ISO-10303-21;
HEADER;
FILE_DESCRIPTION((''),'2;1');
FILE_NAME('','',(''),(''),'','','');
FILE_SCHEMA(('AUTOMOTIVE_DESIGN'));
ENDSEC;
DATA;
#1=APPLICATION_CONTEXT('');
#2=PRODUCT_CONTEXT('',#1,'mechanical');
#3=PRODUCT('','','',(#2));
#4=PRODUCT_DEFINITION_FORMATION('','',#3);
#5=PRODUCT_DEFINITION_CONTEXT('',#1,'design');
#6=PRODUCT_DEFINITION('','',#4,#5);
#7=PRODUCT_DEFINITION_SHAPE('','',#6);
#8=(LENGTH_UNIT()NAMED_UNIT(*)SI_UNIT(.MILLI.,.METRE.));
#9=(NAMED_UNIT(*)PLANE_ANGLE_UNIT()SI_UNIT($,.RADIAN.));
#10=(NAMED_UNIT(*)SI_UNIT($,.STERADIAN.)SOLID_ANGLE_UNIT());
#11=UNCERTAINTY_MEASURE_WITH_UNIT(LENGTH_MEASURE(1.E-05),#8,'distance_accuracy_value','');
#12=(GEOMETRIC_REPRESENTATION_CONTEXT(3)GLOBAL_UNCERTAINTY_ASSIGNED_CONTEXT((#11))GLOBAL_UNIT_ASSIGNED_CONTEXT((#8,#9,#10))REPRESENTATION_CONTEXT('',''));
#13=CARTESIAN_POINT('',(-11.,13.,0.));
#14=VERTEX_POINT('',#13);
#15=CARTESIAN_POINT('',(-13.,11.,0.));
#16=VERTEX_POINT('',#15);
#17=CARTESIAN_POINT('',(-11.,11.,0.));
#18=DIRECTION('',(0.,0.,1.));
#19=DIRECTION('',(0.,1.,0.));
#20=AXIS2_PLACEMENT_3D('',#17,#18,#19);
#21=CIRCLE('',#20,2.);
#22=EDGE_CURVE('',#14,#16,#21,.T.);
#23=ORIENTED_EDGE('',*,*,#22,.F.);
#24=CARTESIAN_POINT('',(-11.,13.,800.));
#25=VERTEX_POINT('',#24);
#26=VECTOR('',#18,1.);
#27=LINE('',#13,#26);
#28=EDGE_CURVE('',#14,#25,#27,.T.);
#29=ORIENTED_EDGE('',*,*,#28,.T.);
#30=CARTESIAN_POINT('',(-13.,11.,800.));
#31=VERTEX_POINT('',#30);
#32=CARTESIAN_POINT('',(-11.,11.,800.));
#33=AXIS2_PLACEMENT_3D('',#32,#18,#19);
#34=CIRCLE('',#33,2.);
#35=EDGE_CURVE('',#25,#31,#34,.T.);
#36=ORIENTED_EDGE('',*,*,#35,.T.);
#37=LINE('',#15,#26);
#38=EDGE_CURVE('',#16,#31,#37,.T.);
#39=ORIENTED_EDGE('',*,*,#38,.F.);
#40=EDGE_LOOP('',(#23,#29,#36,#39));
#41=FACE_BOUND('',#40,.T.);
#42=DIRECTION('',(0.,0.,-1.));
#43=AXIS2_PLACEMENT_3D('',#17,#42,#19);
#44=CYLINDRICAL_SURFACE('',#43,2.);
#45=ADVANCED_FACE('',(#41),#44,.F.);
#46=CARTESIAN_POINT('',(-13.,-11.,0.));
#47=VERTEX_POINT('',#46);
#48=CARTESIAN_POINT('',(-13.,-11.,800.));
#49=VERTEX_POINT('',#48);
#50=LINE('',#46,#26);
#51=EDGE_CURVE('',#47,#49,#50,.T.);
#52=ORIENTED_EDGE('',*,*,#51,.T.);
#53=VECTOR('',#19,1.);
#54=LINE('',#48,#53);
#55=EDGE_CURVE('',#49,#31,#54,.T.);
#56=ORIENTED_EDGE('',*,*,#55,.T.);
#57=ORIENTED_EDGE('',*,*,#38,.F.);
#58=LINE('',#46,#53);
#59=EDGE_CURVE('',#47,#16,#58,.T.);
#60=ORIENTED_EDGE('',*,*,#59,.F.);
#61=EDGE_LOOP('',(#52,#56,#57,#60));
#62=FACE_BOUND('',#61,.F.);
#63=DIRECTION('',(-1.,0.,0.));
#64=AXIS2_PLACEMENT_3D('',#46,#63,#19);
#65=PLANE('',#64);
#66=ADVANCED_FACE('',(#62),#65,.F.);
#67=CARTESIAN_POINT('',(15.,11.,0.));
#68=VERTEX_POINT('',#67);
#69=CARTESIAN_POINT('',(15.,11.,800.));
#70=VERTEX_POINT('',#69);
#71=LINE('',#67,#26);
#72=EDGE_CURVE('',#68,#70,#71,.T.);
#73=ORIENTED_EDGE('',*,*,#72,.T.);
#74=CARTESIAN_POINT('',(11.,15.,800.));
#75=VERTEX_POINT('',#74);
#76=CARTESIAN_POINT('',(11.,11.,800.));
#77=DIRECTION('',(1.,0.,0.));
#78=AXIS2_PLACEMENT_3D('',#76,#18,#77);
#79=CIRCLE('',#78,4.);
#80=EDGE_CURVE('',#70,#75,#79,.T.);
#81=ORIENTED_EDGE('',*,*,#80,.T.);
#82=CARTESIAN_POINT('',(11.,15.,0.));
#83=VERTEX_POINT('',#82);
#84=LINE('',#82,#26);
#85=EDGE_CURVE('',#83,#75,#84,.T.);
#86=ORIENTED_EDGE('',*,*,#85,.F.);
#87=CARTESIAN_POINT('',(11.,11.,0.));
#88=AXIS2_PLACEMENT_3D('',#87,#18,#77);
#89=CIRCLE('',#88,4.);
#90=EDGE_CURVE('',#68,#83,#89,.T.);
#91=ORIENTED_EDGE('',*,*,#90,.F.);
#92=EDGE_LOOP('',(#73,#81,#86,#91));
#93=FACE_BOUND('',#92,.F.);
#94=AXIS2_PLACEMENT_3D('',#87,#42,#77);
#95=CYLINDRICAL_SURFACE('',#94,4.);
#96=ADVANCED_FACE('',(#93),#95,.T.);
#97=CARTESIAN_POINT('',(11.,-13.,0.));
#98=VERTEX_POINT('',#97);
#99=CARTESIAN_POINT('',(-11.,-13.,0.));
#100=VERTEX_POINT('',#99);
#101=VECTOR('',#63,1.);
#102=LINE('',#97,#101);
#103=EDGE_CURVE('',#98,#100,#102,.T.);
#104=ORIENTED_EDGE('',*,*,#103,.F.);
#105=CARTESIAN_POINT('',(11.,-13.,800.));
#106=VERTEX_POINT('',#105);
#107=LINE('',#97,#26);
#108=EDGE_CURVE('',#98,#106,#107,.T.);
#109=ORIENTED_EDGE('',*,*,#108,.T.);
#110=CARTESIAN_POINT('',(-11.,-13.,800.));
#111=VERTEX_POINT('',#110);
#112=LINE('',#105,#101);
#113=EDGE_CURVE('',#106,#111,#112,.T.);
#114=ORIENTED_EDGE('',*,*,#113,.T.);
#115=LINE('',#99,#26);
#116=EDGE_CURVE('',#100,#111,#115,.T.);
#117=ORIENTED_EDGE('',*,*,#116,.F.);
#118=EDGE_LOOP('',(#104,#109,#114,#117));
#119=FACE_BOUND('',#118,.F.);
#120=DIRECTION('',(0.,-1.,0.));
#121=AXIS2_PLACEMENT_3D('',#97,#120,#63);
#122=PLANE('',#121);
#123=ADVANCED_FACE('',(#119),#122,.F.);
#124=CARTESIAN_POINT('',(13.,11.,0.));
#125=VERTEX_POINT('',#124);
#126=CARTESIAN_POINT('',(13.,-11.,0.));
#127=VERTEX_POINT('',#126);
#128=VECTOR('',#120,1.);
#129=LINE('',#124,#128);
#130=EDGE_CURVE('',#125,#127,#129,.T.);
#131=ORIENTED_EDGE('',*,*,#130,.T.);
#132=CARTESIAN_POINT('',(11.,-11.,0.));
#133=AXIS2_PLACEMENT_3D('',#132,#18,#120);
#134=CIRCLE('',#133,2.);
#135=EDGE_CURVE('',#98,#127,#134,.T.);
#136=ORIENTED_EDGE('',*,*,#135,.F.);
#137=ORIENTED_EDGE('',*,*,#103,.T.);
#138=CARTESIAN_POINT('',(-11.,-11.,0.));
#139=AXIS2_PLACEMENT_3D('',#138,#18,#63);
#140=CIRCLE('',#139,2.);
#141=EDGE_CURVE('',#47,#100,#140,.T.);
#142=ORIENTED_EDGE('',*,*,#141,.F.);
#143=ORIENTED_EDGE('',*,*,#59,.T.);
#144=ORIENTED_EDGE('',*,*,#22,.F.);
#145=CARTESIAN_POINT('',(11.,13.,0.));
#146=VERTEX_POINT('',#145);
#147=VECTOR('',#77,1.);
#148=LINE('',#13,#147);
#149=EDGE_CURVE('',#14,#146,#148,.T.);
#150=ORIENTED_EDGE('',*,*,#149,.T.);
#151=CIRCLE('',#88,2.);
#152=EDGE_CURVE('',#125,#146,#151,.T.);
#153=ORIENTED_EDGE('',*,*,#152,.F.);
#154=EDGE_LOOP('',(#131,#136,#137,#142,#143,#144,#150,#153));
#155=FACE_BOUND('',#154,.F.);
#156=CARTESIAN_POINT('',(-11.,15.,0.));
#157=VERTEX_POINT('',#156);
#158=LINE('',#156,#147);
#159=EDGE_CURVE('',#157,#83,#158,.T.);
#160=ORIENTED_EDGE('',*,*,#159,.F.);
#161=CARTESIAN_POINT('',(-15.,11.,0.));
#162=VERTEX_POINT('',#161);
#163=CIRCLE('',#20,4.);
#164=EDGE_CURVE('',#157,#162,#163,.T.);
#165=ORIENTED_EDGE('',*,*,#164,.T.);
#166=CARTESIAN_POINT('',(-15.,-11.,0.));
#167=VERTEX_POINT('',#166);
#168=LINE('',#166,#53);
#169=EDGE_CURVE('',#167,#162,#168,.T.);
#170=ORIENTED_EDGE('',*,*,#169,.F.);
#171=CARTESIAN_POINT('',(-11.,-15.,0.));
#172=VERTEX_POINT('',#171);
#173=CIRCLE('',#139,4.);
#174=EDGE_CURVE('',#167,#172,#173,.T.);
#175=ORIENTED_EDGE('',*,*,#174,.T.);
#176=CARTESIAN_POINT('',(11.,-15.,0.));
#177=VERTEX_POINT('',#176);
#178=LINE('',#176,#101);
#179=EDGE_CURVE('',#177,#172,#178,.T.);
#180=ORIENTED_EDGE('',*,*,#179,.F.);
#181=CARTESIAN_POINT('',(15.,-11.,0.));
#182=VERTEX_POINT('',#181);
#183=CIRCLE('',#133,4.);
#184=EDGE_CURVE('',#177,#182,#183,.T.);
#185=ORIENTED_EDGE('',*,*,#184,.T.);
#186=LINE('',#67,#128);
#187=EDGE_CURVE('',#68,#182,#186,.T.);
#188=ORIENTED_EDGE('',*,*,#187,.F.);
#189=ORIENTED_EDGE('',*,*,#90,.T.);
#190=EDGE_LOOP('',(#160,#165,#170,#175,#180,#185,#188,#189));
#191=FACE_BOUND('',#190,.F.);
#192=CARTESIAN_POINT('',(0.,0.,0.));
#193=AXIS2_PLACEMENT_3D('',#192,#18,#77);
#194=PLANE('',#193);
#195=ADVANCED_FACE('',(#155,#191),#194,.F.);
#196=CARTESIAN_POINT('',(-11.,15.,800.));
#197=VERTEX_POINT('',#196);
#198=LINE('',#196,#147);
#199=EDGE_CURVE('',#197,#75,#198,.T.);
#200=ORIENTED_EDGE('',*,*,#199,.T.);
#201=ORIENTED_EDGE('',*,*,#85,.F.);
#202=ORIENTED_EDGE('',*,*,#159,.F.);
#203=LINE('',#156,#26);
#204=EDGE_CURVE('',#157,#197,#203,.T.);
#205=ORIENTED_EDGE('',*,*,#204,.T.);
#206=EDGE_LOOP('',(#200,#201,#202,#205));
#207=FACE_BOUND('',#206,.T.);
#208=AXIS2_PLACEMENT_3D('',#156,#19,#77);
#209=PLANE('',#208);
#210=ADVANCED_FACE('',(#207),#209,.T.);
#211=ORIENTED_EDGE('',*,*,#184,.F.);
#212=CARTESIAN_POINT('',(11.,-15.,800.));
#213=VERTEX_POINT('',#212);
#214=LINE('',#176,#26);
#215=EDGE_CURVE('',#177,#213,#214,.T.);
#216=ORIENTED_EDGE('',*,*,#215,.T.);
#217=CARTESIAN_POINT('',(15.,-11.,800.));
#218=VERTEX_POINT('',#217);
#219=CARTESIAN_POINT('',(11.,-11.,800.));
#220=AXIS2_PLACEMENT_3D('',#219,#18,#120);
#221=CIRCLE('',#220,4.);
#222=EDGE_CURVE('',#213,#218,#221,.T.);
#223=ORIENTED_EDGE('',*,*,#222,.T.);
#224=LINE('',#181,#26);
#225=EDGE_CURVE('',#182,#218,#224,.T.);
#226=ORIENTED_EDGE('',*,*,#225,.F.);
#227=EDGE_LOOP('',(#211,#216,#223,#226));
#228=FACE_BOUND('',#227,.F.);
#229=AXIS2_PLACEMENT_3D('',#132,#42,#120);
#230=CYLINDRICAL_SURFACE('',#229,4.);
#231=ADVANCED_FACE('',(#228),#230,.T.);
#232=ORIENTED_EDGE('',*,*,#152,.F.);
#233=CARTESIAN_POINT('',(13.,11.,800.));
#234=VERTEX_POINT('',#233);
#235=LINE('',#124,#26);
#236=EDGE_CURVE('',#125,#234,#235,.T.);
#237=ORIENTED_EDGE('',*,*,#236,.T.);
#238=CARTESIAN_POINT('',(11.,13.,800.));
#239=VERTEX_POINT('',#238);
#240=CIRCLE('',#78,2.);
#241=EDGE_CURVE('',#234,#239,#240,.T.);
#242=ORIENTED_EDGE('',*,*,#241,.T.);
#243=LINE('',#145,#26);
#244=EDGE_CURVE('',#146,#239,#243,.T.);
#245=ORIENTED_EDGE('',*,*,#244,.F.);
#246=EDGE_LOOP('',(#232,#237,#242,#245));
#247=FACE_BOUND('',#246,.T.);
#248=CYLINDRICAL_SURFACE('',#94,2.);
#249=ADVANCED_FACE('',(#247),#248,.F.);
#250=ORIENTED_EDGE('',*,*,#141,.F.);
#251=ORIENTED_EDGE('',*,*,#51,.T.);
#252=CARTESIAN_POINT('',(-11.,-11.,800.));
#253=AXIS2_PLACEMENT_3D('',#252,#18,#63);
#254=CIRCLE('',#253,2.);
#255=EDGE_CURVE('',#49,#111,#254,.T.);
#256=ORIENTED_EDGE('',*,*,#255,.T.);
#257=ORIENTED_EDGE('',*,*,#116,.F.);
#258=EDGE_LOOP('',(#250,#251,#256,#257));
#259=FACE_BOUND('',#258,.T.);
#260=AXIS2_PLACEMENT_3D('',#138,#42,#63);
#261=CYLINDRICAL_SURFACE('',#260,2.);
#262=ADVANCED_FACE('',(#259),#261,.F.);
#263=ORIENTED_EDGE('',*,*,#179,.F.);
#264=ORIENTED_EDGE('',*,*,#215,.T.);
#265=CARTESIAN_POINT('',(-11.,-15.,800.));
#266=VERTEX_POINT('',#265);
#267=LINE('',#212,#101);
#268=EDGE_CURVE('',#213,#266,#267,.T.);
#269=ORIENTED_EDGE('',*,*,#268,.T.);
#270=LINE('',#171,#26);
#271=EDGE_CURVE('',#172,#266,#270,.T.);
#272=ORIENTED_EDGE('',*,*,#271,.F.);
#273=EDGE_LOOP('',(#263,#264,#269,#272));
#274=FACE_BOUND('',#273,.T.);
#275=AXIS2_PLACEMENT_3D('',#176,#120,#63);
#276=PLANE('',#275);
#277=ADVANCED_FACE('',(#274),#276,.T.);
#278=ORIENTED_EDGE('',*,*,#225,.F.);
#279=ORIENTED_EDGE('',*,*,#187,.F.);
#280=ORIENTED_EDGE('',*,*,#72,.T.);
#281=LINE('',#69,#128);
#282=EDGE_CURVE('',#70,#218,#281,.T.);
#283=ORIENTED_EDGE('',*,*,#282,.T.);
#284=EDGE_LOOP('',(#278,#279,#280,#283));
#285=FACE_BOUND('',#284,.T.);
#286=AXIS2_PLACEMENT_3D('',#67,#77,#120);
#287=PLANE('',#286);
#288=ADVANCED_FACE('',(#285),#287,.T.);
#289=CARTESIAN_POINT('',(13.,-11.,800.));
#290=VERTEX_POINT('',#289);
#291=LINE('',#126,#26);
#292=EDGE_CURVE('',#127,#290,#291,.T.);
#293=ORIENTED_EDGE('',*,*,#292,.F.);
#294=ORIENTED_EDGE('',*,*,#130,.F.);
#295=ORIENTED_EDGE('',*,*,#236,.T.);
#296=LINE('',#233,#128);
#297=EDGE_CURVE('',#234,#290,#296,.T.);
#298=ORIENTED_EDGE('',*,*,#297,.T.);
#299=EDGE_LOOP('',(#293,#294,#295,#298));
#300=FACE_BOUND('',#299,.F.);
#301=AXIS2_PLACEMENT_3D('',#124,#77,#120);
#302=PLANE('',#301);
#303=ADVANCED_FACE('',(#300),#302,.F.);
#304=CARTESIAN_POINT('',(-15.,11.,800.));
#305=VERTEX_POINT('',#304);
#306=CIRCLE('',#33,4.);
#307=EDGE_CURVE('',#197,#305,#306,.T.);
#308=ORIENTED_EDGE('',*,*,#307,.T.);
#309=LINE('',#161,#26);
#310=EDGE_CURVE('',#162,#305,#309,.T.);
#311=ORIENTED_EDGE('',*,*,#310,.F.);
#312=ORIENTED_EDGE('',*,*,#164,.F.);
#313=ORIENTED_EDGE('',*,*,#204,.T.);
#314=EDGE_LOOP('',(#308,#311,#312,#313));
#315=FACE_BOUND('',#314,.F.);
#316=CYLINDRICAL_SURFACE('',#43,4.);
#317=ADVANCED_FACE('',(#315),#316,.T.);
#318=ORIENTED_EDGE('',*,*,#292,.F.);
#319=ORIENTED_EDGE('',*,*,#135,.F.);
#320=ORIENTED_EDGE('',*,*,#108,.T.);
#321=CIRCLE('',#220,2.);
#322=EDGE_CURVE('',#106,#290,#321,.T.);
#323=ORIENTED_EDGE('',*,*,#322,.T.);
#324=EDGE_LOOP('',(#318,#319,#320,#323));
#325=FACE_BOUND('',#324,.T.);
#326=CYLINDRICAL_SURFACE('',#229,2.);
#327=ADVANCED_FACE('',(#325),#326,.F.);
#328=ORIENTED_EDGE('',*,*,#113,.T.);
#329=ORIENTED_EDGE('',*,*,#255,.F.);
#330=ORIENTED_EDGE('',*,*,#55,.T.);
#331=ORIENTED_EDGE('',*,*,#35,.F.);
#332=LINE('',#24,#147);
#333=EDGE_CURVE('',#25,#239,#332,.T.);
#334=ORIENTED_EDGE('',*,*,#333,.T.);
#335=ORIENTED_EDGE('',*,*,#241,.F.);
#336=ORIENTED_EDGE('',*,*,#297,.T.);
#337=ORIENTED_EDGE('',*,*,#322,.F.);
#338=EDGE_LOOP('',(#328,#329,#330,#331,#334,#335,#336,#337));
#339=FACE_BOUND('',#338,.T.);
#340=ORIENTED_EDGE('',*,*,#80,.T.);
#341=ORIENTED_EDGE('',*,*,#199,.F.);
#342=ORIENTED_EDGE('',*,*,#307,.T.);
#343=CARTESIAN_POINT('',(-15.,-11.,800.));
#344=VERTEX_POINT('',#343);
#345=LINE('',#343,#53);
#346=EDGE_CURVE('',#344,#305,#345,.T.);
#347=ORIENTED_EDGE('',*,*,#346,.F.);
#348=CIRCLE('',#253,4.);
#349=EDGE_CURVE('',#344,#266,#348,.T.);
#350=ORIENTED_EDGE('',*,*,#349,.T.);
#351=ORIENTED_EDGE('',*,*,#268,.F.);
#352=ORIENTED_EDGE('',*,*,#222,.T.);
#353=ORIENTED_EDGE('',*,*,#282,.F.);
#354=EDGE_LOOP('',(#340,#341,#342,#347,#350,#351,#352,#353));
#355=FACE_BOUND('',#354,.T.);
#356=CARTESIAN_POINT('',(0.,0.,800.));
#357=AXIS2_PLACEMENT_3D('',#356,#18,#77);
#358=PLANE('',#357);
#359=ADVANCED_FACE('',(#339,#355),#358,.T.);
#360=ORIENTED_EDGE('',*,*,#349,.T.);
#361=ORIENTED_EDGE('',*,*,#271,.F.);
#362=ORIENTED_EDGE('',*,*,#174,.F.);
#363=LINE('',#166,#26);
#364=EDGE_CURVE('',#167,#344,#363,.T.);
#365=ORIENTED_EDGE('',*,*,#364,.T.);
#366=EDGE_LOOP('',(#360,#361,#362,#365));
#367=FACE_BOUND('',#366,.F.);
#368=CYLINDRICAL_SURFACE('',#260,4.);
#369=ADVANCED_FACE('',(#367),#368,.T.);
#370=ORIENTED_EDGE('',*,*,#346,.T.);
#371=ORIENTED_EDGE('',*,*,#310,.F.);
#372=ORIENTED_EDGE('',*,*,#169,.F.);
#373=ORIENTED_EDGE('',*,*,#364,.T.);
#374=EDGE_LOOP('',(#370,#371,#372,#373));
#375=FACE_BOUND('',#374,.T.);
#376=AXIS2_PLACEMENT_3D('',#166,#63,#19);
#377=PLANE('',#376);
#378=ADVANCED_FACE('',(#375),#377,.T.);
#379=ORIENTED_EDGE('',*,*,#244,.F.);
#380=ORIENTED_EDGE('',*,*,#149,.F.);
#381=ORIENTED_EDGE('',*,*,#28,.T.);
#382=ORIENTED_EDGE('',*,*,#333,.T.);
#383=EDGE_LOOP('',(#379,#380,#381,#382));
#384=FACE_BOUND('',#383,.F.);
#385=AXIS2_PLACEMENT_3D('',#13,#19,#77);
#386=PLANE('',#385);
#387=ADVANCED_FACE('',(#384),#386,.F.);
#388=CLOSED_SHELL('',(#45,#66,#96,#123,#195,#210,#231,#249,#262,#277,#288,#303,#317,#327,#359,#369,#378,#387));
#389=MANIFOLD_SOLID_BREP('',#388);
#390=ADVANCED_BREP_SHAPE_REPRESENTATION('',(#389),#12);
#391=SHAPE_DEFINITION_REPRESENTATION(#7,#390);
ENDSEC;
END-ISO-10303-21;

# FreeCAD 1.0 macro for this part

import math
import FreeCAD as App
import Part
import Sketcher
Q = App.Units.Quantity

doc = App.newDocument("Part")
body = doc.addObject("PartDesign::Body", "Body")

sketch1 = body.newObject("Sketcher::SketchObject", "Sketch")
sketch1.AttachmentSupport = (doc.getObject("XY_Plane"), [""])
sketch1.MapMode = "FlatFace"
sketch1.addGeometry([
    Part.LineSegment(App.Vector(-15, 11, 0), App.Vector(-15, -11, 0)),
    Part.ArcOfCircle(Part.Circle(App.Vector(-11, -11, 0), App.Vector(0, 0, 1), 4), math.radians(180), math.radians(270)),
    Part.LineSegment(App.Vector(-11, -15, 0), App.Vector(11, -15, 0)),
    Part.ArcOfCircle(Part.Circle(App.Vector(11, -11, 0), App.Vector(0, 0, 1), 4), math.radians(-90), math.radians(0)),
    Part.LineSegment(App.Vector(15, -11, 0), App.Vector(15, 11, 0)),
    Part.ArcOfCircle(Part.Circle(App.Vector(11, 11, 0), App.Vector(0, 0, 1), 4), math.radians(0), math.radians(90)),
    Part.LineSegment(App.Vector(11, 15, 0), App.Vector(-11, 15, 0)),
    Part.ArcOfCircle(Part.Circle(App.Vector(-11, 11, 0), App.Vector(0, 0, 1), 4), math.radians(90), math.radians(180)),
    Part.ArcOfCircle(Part.Circle(App.Vector(-11, 11, 0), App.Vector(0, 0, 1), 2), math.radians(90), math.radians(180)),
    Part.LineSegment(App.Vector(-11, 13, 0), App.Vector(11, 13, 0)),
    Part.ArcOfCircle(Part.Circle(App.Vector(11, 11, 0), App.Vector(0, 0, 1), 2), math.radians(0), math.radians(90)),
    Part.LineSegment(App.Vector(13, 11, 0), App.Vector(13, -11, 0)),
    Part.ArcOfCircle(Part.Circle(App.Vector(11, -11, 0), App.Vector(0, 0, 1), 2), math.radians(-90), math.radians(0)),
    Part.LineSegment(App.Vector(11, -13, 0), App.Vector(-11, -13, 0)),
    Part.ArcOfCircle(Part.Circle(App.Vector(-11, -11, 0), App.Vector(0, 0, 1), 2), math.radians(180), math.radians(270)),
    Part.LineSegment(App.Vector(-13, -11, 0), App.Vector(-13, 11, 0)),
], False)
sketch1.addConstraint([
    Sketcher.Constraint("Tangent", 0, 2, 1, 1),
    Sketcher.Constraint("Tangent", 1, 2, 2, 1),
    Sketcher.Constraint("Tangent", 2, 2, 3, 1),
    Sketcher.Constraint("Tangent", 3, 2, 4, 1),
    Sketcher.Constraint("Tangent", 4, 2, 5, 1),
    Sketcher.Constraint("Tangent", 5, 2, 6, 1),
    Sketcher.Constraint("Tangent", 6, 2, 7, 1),
    Sketcher.Constraint("Tangent", 7, 2, 0, 1),
    Sketcher.Constraint("Tangent", 8, 1, 9, 1),
    Sketcher.Constraint("Tangent", 9, 2, 10, 2),
    Sketcher.Constraint("Tangent", 10, 1, 11, 1),
    Sketcher.Constraint("Tangent", 11, 2, 12, 2),
    Sketcher.Constraint("Tangent", 12, 1, 13, 1),
    Sketcher.Constraint("Tangent", 13, 2, 14, 2),
    Sketcher.Constraint("Tangent", 14, 1, 15, 1),
    Sketcher.Constraint("Tangent", 15, 2, 8, 2),
    Sketcher.Constraint("Vertical", 0),
    Sketcher.Constraint("Horizontal", 2),
    Sketcher.Constraint("Vertical", 4),
    Sketcher.Constraint("Horizontal", 6),
    Sketcher.Constraint("Horizontal", 9),
    Sketcher.Constraint("Vertical", 11),
    Sketcher.Constraint("Horizontal", 13),
    Sketcher.Constraint("Vertical", 15),
    Sketcher.Constraint("Coincident", 8, 3, 7, 3),
    Sketcher.Constraint("Coincident", 10, 3, 5, 3),
    Sketcher.Constraint("Coincident", 12, 3, 3, 3),
    Sketcher.Constraint("Equal", 1, 3),
    Sketcher.Constraint("Equal", 3, 5),
    Sketcher.Constraint("Equal", 5, 7),
    Sketcher.Constraint("Equal", 12, 14),
    Sketcher.Constraint("Symmetric", 1, 3, 5, 3, -1, 1),
    Sketcher.Constraint("Equal", 13, 0),
    Sketcher.Constraint("Radius", 1, Q("4 mm")),
    Sketcher.Constraint("Radius", 8, Q("2 mm")),
    Sketcher.Constraint("DistanceX", 0, 2, -1, 1, Q("15 mm")),
])
pad1 = body.newObject("PartDesign::Pad", "Pad")
pad1.Profile = sketch1
pad1.Length = 800

doc.recompute()
